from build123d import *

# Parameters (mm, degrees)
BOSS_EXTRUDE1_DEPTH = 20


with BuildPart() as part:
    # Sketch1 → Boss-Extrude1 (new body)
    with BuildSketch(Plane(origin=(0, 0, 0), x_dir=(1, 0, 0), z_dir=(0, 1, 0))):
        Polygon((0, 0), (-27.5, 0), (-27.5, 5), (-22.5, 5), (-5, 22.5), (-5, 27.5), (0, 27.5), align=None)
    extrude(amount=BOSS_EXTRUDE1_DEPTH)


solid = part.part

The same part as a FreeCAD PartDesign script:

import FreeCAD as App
import Part
import Sketcher

V = App.Vector
Q = App.Units.Quantity


def add_polygon(sketch, points):
    """Adds a closed chain of lines whose ends are joined by coincident constraints."""
    first, n = sketch.GeometryCount, len(points)
    for a, b in zip(points, points[1:] + points[:1]):
        sketch.addGeometry(Part.LineSegment(App.Vector(*a, 0), App.Vector(*b, 0)), False)
    for i in range(n):
        sketch.addConstraint(Sketcher.Constraint("Coincident", first + i, 2, first + (i + 1) % n, 1))

doc = App.newDocument("Part")
body = doc.addObject("PartDesign::Body", "Body")

sketch1 = doc.addObject("Sketcher::SketchObject", "Sketch")
body.addObject(sketch1)
sketch1.AttachmentSupport = (doc.XZ_Plane, [""])
sketch1.MapMode = "FlatFace"
add_polygon(sketch1, [(-28, 0), (0, 0), (0, -28), (-5, -28), (-5, -22), (-22, -5), (-28, -5)])
sketch1.addConstraint(Sketcher.Constraint("Horizontal", 0))
sketch1.addConstraint(Sketcher.Constraint("Vertical", 1))
sketch1.addConstraint(Sketcher.Constraint("Horizontal", 2))
sketch1.addConstraint(Sketcher.Constraint("Vertical", 3))
sketch1.addConstraint(Sketcher.Constraint("Horizontal", 5))
sketch1.addConstraint(Sketcher.Constraint("Vertical", 6))
sketch1.addConstraint(Sketcher.Constraint("Coincident", 0, 2, -1, 1))
sketch1.addConstraint(Sketcher.Constraint("Equal", 2, 5))
sketch1.addConstraint(Sketcher.Constraint("Equal", 0, 1))
sketch1.addConstraint(Sketcher.Constraint("Equal", 5, 3))
sketch1.addConstraint(Sketcher.Constraint("Equal", 3, 6))
sketch1.addConstraint(Sketcher.Constraint("DistanceX", 2, 2, 2, 1, Q("5 mm")))
sketch1.addConstraint(Sketcher.Constraint("DistanceX", 0, 1, 0, 2, Q("27.5 mm")))
pad1 = doc.addObject("PartDesign::Pad", "Pad")
body.addObject(pad1)
pad1.Profile = sketch1
pad1.Length = 20
pad1.Reversed = True

doc.recompute()
